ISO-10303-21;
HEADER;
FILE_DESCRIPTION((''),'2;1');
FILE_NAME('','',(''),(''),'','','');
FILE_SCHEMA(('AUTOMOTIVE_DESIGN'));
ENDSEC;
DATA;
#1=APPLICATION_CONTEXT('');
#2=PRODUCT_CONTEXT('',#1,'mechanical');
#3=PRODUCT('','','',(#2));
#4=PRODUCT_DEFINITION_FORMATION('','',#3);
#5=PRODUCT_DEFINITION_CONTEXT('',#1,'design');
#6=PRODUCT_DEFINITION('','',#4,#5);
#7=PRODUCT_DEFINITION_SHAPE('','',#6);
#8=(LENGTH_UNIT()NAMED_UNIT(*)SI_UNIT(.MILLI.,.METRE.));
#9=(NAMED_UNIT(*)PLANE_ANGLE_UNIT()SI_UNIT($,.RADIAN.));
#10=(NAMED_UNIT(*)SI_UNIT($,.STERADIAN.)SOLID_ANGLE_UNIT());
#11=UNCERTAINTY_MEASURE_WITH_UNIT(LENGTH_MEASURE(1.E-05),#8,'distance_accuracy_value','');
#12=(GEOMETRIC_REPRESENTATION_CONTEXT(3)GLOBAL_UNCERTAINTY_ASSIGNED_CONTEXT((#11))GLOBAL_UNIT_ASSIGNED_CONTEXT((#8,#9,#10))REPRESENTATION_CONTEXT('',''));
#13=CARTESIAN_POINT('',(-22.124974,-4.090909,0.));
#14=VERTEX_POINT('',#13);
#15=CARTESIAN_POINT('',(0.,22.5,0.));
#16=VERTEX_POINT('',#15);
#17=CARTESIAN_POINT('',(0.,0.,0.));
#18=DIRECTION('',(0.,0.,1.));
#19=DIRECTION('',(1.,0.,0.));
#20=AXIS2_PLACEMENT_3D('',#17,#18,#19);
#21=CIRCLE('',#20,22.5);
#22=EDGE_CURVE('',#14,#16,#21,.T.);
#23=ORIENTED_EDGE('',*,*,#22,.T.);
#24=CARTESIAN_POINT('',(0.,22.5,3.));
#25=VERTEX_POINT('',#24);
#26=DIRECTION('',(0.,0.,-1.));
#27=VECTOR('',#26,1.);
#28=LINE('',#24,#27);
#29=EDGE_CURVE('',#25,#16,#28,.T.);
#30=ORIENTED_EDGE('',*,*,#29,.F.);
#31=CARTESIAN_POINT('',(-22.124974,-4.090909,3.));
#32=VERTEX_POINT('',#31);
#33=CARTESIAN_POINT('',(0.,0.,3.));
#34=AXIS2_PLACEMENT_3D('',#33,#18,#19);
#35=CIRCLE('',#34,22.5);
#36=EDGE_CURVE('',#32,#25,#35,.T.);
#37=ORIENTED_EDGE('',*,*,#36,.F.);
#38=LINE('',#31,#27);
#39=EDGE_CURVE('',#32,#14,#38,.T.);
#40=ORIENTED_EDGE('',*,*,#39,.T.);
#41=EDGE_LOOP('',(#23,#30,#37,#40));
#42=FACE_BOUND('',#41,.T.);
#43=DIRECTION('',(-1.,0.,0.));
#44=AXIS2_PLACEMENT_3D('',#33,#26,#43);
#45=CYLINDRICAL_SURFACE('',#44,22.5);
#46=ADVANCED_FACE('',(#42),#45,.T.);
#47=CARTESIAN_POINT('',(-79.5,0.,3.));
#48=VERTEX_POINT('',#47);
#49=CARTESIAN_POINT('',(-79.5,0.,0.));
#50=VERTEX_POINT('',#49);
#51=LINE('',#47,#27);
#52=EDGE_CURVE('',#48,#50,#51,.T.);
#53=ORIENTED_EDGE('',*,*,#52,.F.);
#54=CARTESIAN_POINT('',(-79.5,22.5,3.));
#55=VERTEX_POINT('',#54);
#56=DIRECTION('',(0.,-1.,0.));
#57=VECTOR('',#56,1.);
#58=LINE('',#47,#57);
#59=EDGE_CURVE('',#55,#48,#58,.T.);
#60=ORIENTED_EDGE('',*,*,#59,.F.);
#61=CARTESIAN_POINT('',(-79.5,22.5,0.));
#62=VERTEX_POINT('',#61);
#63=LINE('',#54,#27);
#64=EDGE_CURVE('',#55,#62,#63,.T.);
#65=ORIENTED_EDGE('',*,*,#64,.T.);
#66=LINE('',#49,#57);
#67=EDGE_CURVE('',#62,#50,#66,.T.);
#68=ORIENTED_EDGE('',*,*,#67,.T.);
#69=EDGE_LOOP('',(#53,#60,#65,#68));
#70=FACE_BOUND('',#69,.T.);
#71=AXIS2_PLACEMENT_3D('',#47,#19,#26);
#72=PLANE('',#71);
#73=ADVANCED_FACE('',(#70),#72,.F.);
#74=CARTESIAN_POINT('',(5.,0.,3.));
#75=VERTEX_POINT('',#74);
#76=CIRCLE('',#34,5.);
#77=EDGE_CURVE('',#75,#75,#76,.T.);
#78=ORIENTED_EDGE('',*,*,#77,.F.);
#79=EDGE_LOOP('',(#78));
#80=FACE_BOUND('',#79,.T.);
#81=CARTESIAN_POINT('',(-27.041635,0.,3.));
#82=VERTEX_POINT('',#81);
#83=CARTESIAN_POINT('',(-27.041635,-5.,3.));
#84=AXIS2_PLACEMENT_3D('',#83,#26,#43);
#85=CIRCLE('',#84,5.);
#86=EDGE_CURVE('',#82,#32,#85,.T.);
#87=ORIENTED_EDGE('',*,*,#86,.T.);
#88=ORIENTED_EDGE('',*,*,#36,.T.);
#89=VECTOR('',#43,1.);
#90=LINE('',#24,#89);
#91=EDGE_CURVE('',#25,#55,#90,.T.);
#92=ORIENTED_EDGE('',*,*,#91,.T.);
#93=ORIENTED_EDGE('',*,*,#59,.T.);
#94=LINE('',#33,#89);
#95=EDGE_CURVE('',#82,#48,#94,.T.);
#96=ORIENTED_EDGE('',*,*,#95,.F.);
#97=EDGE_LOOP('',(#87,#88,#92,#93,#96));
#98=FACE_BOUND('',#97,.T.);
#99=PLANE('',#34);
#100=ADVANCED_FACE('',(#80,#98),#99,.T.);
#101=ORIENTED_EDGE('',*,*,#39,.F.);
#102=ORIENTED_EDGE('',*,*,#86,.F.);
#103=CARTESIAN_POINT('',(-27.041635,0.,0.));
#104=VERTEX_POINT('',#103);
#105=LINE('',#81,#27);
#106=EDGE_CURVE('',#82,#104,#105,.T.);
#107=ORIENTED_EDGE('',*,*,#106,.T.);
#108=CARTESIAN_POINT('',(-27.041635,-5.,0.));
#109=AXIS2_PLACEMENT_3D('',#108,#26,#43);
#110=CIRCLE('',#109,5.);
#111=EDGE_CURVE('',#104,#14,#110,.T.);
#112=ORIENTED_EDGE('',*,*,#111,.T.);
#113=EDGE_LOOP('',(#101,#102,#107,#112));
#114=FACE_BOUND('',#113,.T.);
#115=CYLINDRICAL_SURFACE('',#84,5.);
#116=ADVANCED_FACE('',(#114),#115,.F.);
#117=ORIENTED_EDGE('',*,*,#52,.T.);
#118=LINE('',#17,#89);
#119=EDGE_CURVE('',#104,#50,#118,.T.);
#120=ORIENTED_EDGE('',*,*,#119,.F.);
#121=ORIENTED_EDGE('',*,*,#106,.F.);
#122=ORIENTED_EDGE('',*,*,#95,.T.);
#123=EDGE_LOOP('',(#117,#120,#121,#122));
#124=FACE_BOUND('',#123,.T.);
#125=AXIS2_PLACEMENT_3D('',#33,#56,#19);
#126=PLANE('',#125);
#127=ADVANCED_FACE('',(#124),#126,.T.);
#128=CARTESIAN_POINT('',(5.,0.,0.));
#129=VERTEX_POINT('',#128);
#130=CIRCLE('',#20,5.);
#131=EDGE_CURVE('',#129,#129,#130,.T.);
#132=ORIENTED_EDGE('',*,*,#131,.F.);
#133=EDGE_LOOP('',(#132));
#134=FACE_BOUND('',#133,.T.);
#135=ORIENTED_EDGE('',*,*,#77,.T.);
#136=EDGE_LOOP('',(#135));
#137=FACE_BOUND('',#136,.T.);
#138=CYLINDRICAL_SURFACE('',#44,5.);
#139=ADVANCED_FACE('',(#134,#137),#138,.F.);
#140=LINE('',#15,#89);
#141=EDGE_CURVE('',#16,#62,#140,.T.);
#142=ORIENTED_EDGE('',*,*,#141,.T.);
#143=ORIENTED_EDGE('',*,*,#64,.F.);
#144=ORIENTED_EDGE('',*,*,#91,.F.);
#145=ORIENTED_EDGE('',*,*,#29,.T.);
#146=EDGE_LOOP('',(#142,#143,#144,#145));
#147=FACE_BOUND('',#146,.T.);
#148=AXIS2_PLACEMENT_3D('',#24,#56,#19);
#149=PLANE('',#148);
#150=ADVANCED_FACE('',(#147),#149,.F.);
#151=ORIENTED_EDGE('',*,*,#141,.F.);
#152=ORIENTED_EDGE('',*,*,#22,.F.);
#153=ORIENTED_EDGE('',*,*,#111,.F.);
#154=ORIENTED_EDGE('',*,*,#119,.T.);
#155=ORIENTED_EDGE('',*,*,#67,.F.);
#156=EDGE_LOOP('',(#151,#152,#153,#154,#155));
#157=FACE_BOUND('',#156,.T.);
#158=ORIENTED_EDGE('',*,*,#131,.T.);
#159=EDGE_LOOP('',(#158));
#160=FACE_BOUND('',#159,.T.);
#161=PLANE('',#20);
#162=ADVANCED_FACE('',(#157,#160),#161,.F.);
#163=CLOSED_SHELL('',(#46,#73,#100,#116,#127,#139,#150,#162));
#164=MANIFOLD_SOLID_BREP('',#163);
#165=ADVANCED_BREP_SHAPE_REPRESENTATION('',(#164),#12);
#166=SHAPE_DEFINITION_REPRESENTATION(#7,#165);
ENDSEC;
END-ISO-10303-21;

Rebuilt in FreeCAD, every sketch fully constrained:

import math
import FreeCAD as App
import Part
import Sketcher
Q = App.Units.Quantity

doc = App.newDocument("Part")
body = doc.addObject("PartDesign::Body", "Body")

# Sketch on XY plane
sketch1 = body.newObject("Sketcher::SketchObject", "Sketch")
sketch1.AttachmentSupport = (doc.getObject("XY_Plane"), [""])
sketch1.MapMode = "FlatFace"
sketch1.addGeometry(Part.ArcOfCircle(Part.Circle(App.Vector(0, 0, 0), App.Vector(0, 0, 1), 22.5), math.radians(0), math.radians(90)), False)
sketch1.addGeometry(Part.LineSegment(App.Vector(0, 22.5, 0), App.Vector(-79.5, 22.5, 0)), False)
sketch1.addGeometry(Part.LineSegment(App.Vector(-79.5, 22.5, 0), App.Vector(-79.5, 0, 0)), False)
sketch1.addGeometry(Part.LineSegment(App.Vector(-79.5, 0, 0), App.Vector(-27.041635, 0, 0)), False)
sketch1.addGeometry(Part.ArcOfCircle(Part.Circle(App.Vector(-27.041635, -5, 0), App.Vector(0, 0, 1), 5), math.radians(10.475682), math.radians(90)), False)
sketch1.addGeometry(Part.ArcOfCircle(Part.Circle(App.Vector(0, 0, 0), App.Vector(0, 0, 1), 22.5), math.radians(-169.524318), math.radians(0)), False)
sketch1.addGeometry(Part.Circle(App.Vector(0, 0, 0), App.Vector(0, 0, 1), 5), False)
sketch1.addConstraint(Sketcher.Constraint("Tangent", 0, 2, 1, 1))
sketch1.addConstraint(Sketcher.Constraint("Coincident", 1, 2, 2, 1))
sketch1.addConstraint(Sketcher.Constraint("Coincident", 2, 2, 3, 1))
sketch1.addConstraint(Sketcher.Constraint("Tangent", 3, 2, 4, 2))
sketch1.addConstraint(Sketcher.Constraint("Tangent", 4, 1, 5, 1))
sketch1.addConstraint(Sketcher.Constraint("Tangent", 5, 2, 0, 1))
sketch1.addConstraint(Sketcher.Constraint("Horizontal", 1))
sketch1.addConstraint(Sketcher.Constraint("Vertical", 2))
sketch1.addConstraint(Sketcher.Constraint("Horizontal", 3))
sketch1.addConstraint(Sketcher.Constraint("Coincident", 0, 3, -1, 1))
sketch1.addConstraint(Sketcher.Constraint("Coincident", 6, 3, -1, 1))
sketch1.addConstraint(Sketcher.Constraint("Equal", 0, 5))
sketch1.addConstraint(Sketcher.Constraint("Equal", 4, 6))
sketch1.addConstraint(Sketcher.Constraint("PointOnObject", 2, 2, -1))
sketch1.addConstraint(Sketcher.Constraint("PointOnObject", 5, 2, -1))
sketch1.addConstraint(Sketcher.Constraint("Diameter", 6, Q("10 mm")))
sketch1.addConstraint(Sketcher.Constraint("Radius", 0, Q("22.5 mm")))
sketch1.addConstraint(Sketcher.Constraint("DistanceX", 1, 2, 1, 1, Q("79.5 mm")))
pad1 = body.newObject("PartDesign::Pad", "Pad")
pad1.Profile = sketch1
pad1.Length = 3

doc.recompute()
